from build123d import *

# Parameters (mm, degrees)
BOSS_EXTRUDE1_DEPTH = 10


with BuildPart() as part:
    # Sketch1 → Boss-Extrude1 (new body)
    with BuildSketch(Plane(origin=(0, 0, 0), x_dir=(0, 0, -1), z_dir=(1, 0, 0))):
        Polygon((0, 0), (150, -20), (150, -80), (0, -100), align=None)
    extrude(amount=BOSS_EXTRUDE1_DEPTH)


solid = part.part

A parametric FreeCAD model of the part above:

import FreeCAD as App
import Part
import Sketcher

V = App.Vector

doc = App.newDocument("Part")
body = doc.addObject("PartDesign::Body", "Body")

# Sketch on YZ plane
sketch1 = body.newObject("Sketcher::SketchObject", "Sketch")
sketch1.AttachmentSupport = (doc.getObject("YZ_Plane"), [""])
sketch1.MapMode = "FlatFace"
sketch1.addGeometry([
    Part.LineSegment(V(-20, -150, 0), V(0, 0, 0)),
    Part.LineSegment(V(0, 0, 0), V(-100, 0, 0)),
    Part.LineSegment(V(-100, 0, 0), V(-80, -150, 0)),
    Part.LineSegment(V(-80, -150, 0), V(-20, -150, 0)),
], False)
sketch1.addConstraint([
    Sketcher.Constraint("Coincident", 0, 2, 1, 1),
    Sketcher.Constraint("Coincident", 1, 2, 2, 1),
    Sketcher.Constraint("Coincident", 2, 2, 3, 1),
    Sketcher.Constraint("Coincident", 3, 2, 0, 1),
    Sketcher.Constraint("Horizontal", 1),
    Sketcher.Constraint("Horizontal", 3),
    Sketcher.Constraint("Coincident", 0, 2, -1, 1),
    Sketcher.Constraint("Equal", 0, 2),
    Sketcher.Constraint("DistanceX", 1, 2, 1, 1, 100.0),
    Sketcher.Constraint("DistanceX", 3, 1, 3, 2, 60.0),
    Sketcher.Constraint("DistanceY", 2, 2, -1, 1, 150.0),
])
pad1 = body.newObject("PartDesign::Pad", "Pad")
pad1.Profile = sketch1
pad1.Length = 10

doc.recompute()
